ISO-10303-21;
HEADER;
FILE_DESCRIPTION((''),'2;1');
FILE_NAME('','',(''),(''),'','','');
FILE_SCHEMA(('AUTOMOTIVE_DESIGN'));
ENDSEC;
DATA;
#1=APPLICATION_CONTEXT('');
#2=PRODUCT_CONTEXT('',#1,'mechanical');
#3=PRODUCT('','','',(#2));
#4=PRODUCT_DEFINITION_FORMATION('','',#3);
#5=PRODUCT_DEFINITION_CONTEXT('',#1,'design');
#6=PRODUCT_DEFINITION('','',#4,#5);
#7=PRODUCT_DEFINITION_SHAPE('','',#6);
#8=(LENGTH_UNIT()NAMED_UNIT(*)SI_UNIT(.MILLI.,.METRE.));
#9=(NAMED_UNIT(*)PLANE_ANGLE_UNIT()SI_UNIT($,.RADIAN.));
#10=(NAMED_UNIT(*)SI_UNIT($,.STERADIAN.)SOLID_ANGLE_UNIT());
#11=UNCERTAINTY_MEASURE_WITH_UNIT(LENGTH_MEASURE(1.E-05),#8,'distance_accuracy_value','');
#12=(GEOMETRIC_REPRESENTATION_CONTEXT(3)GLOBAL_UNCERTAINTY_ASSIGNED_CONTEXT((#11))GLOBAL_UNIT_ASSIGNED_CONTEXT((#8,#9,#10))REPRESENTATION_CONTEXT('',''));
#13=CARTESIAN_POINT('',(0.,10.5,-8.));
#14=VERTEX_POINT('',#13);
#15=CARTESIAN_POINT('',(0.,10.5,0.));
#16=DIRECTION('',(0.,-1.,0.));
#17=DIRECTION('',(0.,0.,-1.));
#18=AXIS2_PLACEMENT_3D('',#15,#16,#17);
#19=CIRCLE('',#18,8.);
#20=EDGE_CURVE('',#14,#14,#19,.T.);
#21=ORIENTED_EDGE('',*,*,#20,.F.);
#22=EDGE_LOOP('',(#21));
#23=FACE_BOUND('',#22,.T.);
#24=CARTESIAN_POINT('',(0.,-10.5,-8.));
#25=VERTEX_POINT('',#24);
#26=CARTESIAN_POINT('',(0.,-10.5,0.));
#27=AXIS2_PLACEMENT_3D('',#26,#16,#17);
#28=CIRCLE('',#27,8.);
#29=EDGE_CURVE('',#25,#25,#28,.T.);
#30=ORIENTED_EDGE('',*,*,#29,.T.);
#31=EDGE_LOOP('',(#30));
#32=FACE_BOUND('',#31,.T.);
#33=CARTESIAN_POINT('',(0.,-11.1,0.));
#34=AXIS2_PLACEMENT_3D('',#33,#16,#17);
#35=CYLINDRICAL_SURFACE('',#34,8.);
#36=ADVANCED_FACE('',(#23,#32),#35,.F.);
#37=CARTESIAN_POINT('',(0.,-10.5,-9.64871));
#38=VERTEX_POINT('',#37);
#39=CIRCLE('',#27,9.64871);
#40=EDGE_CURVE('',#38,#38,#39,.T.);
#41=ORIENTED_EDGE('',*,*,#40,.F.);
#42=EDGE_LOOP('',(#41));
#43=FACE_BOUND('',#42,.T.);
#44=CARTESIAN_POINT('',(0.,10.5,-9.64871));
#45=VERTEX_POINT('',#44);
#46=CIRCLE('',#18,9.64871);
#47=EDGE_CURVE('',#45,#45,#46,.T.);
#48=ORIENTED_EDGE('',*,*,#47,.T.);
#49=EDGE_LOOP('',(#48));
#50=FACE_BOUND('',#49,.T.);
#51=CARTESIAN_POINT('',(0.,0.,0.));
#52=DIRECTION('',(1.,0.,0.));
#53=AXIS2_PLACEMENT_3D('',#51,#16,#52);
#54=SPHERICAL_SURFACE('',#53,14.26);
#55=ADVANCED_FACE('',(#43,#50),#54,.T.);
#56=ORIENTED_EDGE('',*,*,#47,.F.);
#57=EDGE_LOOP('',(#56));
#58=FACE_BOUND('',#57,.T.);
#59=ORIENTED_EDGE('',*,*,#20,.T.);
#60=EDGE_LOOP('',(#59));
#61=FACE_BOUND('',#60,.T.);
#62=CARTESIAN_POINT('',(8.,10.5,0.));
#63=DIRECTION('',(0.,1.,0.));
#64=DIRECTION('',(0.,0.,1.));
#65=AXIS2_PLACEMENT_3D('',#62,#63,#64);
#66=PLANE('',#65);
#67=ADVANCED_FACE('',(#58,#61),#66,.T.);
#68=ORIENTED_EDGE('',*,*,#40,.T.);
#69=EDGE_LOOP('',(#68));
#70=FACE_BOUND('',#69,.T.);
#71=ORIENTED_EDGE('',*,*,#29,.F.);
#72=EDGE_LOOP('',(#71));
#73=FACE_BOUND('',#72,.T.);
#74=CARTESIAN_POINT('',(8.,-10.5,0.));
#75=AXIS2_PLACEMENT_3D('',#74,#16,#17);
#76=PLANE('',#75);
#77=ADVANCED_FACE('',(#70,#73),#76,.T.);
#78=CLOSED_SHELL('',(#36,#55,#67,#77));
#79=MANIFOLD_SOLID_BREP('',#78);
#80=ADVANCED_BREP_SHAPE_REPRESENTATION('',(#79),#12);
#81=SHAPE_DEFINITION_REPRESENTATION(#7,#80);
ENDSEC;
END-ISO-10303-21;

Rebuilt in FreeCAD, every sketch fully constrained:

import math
import FreeCAD as App
import Part
import Sketcher

V = App.Vector
Q = App.Units.Quantity

doc = App.newDocument("Part")
body = doc.addObject("PartDesign::Body", "Body")

sketch1 = doc.addObject("Sketcher::SketchObject", "Sketch")
body.addObject(sketch1)
sketch1.AttachmentSupport = (doc.XY_Plane, [""])
sketch1.MapMode = "FlatFace"
sketch1.addGeometry(Part.LineSegment(V(8, 10.5, 0), V(8, -10.5, 0)), False)
sketch1.addGeometry(Part.LineSegment(V(8, -10.5, 0), V(9.64871, -10.5, 0)), False)
sketch1.addGeometry(Part.ArcOfCircle(Part.Circle(V(0, 0, 0), V(0, 0, 1), 14.26), math.radians(-47.419328), math.radians(47.419328)), False)
sketch1.addGeometry(Part.LineSegment(V(9.64871, 10.5, 0), V(8, 10.5, 0)), False)
sketch1.addConstraint(Sketcher.Constraint("Coincident", 0, 2, 1, 1))
sketch1.addConstraint(Sketcher.Constraint("Coincident", 1, 2, 2, 1))
sketch1.addConstraint(Sketcher.Constraint("Coincident", 2, 2, 3, 1))
sketch1.addConstraint(Sketcher.Constraint("Coincident", 3, 2, 0, 1))
sketch1.addConstraint(Sketcher.Constraint("Vertical", 0))
sketch1.addConstraint(Sketcher.Constraint("Horizontal", 1))
sketch1.addConstraint(Sketcher.Constraint("Horizontal", 3))
sketch1.addConstraint(Sketcher.Constraint("Coincident", 2, 3, -1, 1))
sketch1.addConstraint(Sketcher.Constraint("Vertical", 1, 2, 2, 2))
sketch1.addConstraint(Sketcher.Constraint("DistanceY", 0, 2, 0, 1, Q("21 mm")))
sketch1.addConstraint(Sketcher.Constraint("Radius", 2, Q("14.26 mm")))
sketch1.addConstraint(Sketcher.Constraint("DistanceX", -1, 1, 0, 2, Q("8 mm")))
revolution = doc.addObject("PartDesign::Revolution", "Revolution")
body.addObject(revolution)
revolution.Profile = sketch1
revolution.ReferenceAxis = (sketch1, ["V_Axis"])
revolution.Angle = 360

doc.recompute()
